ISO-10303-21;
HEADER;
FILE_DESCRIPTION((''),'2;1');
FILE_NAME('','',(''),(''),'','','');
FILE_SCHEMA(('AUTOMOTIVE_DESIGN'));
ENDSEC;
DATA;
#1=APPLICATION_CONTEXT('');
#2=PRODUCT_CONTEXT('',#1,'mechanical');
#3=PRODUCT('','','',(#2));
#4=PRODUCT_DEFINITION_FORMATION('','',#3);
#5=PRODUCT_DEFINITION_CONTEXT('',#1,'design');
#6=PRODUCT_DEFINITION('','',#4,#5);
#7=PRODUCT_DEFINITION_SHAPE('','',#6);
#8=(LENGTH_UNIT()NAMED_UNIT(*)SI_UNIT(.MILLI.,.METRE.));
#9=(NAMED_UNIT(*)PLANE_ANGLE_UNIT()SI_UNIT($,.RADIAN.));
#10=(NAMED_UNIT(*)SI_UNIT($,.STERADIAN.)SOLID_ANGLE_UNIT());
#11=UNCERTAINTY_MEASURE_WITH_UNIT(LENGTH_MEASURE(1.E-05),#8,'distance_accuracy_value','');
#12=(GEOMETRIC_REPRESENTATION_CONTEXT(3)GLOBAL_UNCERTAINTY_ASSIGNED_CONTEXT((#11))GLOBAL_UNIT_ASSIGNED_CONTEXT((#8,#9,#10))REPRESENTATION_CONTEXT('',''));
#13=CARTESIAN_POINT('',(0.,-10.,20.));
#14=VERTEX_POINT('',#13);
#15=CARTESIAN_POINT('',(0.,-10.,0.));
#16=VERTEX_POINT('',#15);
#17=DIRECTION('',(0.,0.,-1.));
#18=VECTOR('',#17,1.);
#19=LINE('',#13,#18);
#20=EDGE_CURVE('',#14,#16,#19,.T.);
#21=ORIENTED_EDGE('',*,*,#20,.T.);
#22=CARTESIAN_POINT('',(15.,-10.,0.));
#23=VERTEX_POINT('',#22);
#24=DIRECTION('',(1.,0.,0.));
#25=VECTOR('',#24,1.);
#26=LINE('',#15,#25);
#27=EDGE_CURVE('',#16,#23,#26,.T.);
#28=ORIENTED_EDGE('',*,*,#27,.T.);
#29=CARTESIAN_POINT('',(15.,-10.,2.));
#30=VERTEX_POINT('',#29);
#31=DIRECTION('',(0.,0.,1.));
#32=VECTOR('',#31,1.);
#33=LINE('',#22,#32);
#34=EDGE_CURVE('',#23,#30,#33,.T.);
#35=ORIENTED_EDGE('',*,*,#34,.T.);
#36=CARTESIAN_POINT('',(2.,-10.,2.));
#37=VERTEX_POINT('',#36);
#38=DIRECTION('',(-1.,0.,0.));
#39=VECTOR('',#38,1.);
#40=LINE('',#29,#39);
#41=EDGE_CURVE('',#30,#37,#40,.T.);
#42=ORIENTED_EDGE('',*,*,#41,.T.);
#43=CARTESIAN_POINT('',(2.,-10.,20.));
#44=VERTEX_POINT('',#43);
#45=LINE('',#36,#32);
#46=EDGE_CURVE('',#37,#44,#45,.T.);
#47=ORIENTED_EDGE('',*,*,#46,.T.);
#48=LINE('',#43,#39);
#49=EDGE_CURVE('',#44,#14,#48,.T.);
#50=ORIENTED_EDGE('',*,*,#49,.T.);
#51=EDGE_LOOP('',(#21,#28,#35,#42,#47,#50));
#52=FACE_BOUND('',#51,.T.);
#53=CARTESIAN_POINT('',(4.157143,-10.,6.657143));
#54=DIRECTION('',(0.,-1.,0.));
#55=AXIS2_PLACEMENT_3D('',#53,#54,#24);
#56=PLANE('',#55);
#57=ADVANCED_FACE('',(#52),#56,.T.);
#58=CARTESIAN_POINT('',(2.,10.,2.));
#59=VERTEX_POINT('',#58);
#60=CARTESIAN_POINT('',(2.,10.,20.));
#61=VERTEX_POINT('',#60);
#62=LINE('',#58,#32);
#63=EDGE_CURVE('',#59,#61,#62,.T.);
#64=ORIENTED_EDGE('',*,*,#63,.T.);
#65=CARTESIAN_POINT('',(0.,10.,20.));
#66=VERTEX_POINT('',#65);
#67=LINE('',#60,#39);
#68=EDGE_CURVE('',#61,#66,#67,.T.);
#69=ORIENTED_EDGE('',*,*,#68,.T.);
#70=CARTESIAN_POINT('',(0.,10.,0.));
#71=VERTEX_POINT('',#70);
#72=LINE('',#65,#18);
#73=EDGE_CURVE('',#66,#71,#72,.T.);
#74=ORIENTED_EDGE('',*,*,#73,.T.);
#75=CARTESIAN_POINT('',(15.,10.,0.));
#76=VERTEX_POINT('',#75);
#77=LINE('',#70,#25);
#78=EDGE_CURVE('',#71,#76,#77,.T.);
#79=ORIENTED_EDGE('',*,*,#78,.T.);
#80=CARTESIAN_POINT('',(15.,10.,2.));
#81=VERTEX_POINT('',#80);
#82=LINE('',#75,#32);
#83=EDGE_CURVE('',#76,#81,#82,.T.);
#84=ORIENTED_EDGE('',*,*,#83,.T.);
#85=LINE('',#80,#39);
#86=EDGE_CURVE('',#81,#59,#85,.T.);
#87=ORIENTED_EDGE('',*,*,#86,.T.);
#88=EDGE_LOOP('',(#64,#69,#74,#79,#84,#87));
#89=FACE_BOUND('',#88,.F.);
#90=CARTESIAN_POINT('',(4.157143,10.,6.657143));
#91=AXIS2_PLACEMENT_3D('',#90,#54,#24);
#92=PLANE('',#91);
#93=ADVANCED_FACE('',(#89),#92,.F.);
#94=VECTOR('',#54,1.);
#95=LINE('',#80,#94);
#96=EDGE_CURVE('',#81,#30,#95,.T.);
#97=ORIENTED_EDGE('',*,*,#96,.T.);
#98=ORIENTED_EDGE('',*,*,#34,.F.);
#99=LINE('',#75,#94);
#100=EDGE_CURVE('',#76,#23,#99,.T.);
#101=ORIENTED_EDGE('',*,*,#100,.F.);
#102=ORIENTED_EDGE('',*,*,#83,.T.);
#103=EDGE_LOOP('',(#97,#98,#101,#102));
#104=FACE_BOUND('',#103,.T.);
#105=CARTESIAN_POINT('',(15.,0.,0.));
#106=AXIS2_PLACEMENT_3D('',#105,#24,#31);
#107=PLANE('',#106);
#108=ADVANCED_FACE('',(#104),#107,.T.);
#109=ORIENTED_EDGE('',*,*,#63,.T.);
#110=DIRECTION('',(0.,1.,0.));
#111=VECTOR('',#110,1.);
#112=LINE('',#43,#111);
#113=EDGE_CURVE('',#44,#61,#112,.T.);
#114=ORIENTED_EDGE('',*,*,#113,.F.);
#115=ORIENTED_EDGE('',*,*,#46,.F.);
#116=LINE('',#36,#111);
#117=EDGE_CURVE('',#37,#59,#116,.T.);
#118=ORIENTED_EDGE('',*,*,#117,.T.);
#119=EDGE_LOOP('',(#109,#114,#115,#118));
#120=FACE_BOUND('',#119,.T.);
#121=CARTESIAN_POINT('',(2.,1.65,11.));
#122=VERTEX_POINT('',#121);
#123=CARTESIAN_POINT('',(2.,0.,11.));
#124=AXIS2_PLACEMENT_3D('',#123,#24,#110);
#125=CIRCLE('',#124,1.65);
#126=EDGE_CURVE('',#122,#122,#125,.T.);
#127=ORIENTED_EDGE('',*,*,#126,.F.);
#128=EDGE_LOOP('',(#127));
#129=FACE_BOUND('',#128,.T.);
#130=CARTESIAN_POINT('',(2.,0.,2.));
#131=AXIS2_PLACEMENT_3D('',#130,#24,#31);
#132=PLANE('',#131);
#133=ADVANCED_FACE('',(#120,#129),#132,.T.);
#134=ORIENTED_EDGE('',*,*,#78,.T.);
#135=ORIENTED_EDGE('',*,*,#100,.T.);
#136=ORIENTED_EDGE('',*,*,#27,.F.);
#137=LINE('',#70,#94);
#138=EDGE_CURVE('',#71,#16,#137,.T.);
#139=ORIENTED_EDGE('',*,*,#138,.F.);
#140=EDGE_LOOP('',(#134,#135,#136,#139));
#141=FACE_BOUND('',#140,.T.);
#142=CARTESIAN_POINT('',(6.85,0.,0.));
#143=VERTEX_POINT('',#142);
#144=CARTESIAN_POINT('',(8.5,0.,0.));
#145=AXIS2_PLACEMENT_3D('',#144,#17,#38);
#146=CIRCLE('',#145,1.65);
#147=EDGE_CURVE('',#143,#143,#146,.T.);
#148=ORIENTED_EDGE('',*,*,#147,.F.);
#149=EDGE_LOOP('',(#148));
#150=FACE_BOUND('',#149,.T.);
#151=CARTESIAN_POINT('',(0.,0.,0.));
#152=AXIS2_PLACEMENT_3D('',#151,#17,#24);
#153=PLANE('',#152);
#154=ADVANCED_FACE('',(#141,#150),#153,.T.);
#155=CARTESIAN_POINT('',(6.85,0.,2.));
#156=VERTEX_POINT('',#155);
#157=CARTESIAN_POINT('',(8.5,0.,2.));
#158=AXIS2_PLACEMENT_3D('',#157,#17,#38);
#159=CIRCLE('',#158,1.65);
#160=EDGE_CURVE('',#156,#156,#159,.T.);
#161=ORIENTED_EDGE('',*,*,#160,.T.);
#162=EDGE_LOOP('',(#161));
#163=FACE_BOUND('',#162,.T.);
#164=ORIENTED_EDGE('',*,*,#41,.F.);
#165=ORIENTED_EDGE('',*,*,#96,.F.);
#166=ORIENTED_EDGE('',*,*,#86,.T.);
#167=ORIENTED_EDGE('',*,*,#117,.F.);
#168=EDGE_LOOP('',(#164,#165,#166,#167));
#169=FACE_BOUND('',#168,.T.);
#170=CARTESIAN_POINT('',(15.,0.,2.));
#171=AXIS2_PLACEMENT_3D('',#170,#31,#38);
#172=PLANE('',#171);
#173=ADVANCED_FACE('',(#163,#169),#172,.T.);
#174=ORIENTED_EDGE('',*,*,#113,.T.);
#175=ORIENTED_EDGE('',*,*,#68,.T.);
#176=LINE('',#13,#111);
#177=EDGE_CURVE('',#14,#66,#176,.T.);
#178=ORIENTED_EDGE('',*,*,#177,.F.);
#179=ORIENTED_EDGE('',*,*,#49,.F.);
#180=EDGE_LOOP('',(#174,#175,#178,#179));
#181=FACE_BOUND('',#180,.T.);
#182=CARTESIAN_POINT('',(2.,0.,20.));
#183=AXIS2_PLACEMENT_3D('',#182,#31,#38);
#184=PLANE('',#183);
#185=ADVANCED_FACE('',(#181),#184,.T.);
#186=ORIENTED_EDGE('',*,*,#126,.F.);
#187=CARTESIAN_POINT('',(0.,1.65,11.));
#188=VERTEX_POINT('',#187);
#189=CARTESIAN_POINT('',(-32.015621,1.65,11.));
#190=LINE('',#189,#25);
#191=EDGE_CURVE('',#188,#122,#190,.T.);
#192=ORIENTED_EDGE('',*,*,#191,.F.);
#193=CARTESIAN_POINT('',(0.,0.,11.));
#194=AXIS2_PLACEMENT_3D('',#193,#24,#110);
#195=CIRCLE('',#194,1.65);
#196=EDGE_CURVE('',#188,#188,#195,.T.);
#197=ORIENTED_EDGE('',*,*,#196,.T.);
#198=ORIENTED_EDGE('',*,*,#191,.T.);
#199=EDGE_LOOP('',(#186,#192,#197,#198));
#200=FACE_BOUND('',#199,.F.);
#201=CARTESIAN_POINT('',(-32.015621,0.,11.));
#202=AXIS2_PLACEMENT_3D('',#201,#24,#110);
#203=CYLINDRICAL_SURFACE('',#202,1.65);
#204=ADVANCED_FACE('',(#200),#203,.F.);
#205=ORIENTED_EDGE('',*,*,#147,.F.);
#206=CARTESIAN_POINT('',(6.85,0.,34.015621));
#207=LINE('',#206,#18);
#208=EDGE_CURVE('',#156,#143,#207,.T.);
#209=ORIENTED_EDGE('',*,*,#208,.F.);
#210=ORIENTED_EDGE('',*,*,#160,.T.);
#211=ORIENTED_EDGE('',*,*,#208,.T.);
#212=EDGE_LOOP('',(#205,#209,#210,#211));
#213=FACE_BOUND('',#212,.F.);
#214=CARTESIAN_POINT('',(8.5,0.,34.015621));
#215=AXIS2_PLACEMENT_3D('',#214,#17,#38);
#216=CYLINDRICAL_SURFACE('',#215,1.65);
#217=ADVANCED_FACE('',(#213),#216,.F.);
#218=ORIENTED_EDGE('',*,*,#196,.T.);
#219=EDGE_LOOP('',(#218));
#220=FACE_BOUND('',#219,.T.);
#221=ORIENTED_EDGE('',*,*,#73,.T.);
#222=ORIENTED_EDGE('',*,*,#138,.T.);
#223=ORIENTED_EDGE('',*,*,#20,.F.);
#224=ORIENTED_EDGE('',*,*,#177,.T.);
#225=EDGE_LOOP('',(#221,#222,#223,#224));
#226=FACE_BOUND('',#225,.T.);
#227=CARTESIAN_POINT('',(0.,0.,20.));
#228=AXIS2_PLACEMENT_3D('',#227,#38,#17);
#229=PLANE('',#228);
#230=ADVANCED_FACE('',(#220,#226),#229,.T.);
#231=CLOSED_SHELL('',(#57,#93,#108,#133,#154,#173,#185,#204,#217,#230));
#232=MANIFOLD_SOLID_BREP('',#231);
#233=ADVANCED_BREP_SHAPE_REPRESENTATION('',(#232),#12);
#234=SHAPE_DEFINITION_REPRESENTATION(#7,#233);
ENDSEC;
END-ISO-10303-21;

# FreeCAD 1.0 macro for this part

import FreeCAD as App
import Part
import Sketcher

doc = App.newDocument("Part")
params = doc.addObject("Spreadsheet::Sheet", "Params")
for row, (alias, value) in enumerate([
    ("sketch1_width", "15 mm"),
    ("sketch1_width2", "13 mm"),
    ("sketch1_height", "20 mm"),
    ("pad1_length", "20 mm"),
    ("sketch2_diameter", "3.3 mm"),
    ("hole_diameter", "3.3 mm"),
    ("sketch3_diameter", "3.3 mm"),
    ("hole2_diameter", "3.3 mm"),
], start=1):
    params.set(f"A{row}", alias)
    params.set(f"B{row}", "=" + value)
    params.setAlias(f"B{row}", alias)

body = doc.addObject("PartDesign::Body", "Body")

# Sketch on XZ plane
sketch1 = doc.addObject("Sketcher::SketchObject", "Sketch")
body.addObject(sketch1)
sketch1.AttachmentSupport = (doc.XZ_Plane, [""])
sketch1.MapMode = "FlatFace"
sketch1.addGeometry(Part.LineSegment(App.Vector(0, 20, 0), App.Vector(0, 0, 0)), False)
sketch1.addGeometry(Part.LineSegment(App.Vector(0, 0, 0), App.Vector(15, 0, 0)), False)
sketch1.addGeometry(Part.LineSegment(App.Vector(15, 0, 0), App.Vector(15, 2, 0)), False)
sketch1.addGeometry(Part.LineSegment(App.Vector(15, 2, 0), App.Vector(2, 2, 0)), False)
sketch1.addGeometry(Part.LineSegment(App.Vector(2, 2, 0), App.Vector(2, 20, 0)), False)
sketch1.addGeometry(Part.LineSegment(App.Vector(2, 20, 0), App.Vector(0, 20, 0)), False)
sketch1.addConstraint(Sketcher.Constraint("Coincident", 0, 2, 1, 1))
sketch1.addConstraint(Sketcher.Constraint("Coincident", 1, 2, 2, 1))
sketch1.addConstraint(Sketcher.Constraint("Coincident", 2, 2, 3, 1))
sketch1.addConstraint(Sketcher.Constraint("Coincident", 3, 2, 4, 1))
sketch1.addConstraint(Sketcher.Constraint("Coincident", 4, 2, 5, 1))
sketch1.addConstraint(Sketcher.Constraint("Coincident", 5, 2, 0, 1))
sketch1.addConstraint(Sketcher.Constraint("Vertical", 0))
sketch1.addConstraint(Sketcher.Constraint("Horizontal", 1))
sketch1.addConstraint(Sketcher.Constraint("Vertical", 2))
sketch1.addConstraint(Sketcher.Constraint("Horizontal", 3))
sketch1.addConstraint(Sketcher.Constraint("Vertical", 4))
sketch1.addConstraint(Sketcher.Constraint("Horizontal", 5))
sketch1.addConstraint(Sketcher.Constraint("Coincident", 0, 2, -1, 1))
sketch1.addConstraint(Sketcher.Constraint("Equal", 5, 2))
sketch1.addConstraint(Sketcher.Constraint("DistanceX", 1, 1, 1, 2, 15.0))
sketch1.addConstraint(Sketcher.Constraint("DistanceX", 3, 2, 3, 1, 13.0))
sketch1.addConstraint(Sketcher.Constraint("DistanceY", 0, 2, 0, 1, 20.0))
sketch1.setExpression("Constraints[14]", "Params.sketch1_width")
sketch1.setExpression("Constraints[15]", "Params.sketch1_width2")
sketch1.setExpression("Constraints[16]", "Params.sketch1_height")
pad1 = doc.addObject("PartDesign::Pad", "Pad")
body.addObject(pad1)
pad1.Profile = sketch1
pad1.setExpression("Length", "Params.pad1_length")
pad1.Midplane = True

# Sketch on YZ plane
sketch2 = doc.addObject("Sketcher::SketchObject", "Sketch001")
body.addObject(sketch2)
sketch2.AttachmentSupport = (doc.YZ_Plane, [""])
sketch2.MapMode = "FlatFace"
sketch2.addGeometry(Part.Circle(App.Vector(0, 11, 0), App.Vector(0, 0, 1), 1.6), False)
sketch2.addConstraint(Sketcher.Constraint("PointOnObject", 0, 3, -2))
sketch2.addConstraint(Sketcher.Constraint("Diameter", 0, 3.3))
sketch2.addConstraint(Sketcher.Constraint("DistanceY", -1, 1, 0, 3, 11.0))
sketch2.setExpression("Constraints[1]", "Params.sketch2_diameter")
doc.recompute()
hole = doc.addObject("PartDesign::Hole", "Hole")
body.addObject(hole)
hole.Profile = sketch2
hole.ThreadType = "None"
hole.setExpression("Diameter", "Params.hole_diameter")
hole.DepthType = "ThroughAll"
hole.Reversed = True

# Sketch on XY plane
sketch3 = doc.addObject("Sketcher::SketchObject", "Sketch002")
body.addObject(sketch3)
sketch3.AttachmentSupport = (doc.XY_Plane, [""])
sketch3.MapMode = "FlatFace"
sketch3.AttachmentOffset = App.Placement(App.Vector(0, 0, 2), App.Rotation())
sketch3.addGeometry(Part.Circle(App.Vector(8.5, 0, 0), App.Vector(0, 0, 1), 1.6), False)
sketch3.addConstraint(Sketcher.Constraint("PointOnObject", 0, 3, -1))
sketch3.addConstraint(Sketcher.Constraint("Diameter", 0, 3.3))
sketch3.addConstraint(Sketcher.Constraint("DistanceX", -1, 1, 0, 3, 8.5))
sketch3.setExpression("Constraints[1]", "Params.sketch3_diameter")
doc.recompute()
hole2 = doc.addObject("PartDesign::Hole", "Hole001")
body.addObject(hole2)
hole2.Profile = sketch3
hole2.ThreadType = "None"
hole2.setExpression("Diameter", "Params.hole2_diameter")
hole2.DepthType = "ThroughAll"

doc.recompute()
